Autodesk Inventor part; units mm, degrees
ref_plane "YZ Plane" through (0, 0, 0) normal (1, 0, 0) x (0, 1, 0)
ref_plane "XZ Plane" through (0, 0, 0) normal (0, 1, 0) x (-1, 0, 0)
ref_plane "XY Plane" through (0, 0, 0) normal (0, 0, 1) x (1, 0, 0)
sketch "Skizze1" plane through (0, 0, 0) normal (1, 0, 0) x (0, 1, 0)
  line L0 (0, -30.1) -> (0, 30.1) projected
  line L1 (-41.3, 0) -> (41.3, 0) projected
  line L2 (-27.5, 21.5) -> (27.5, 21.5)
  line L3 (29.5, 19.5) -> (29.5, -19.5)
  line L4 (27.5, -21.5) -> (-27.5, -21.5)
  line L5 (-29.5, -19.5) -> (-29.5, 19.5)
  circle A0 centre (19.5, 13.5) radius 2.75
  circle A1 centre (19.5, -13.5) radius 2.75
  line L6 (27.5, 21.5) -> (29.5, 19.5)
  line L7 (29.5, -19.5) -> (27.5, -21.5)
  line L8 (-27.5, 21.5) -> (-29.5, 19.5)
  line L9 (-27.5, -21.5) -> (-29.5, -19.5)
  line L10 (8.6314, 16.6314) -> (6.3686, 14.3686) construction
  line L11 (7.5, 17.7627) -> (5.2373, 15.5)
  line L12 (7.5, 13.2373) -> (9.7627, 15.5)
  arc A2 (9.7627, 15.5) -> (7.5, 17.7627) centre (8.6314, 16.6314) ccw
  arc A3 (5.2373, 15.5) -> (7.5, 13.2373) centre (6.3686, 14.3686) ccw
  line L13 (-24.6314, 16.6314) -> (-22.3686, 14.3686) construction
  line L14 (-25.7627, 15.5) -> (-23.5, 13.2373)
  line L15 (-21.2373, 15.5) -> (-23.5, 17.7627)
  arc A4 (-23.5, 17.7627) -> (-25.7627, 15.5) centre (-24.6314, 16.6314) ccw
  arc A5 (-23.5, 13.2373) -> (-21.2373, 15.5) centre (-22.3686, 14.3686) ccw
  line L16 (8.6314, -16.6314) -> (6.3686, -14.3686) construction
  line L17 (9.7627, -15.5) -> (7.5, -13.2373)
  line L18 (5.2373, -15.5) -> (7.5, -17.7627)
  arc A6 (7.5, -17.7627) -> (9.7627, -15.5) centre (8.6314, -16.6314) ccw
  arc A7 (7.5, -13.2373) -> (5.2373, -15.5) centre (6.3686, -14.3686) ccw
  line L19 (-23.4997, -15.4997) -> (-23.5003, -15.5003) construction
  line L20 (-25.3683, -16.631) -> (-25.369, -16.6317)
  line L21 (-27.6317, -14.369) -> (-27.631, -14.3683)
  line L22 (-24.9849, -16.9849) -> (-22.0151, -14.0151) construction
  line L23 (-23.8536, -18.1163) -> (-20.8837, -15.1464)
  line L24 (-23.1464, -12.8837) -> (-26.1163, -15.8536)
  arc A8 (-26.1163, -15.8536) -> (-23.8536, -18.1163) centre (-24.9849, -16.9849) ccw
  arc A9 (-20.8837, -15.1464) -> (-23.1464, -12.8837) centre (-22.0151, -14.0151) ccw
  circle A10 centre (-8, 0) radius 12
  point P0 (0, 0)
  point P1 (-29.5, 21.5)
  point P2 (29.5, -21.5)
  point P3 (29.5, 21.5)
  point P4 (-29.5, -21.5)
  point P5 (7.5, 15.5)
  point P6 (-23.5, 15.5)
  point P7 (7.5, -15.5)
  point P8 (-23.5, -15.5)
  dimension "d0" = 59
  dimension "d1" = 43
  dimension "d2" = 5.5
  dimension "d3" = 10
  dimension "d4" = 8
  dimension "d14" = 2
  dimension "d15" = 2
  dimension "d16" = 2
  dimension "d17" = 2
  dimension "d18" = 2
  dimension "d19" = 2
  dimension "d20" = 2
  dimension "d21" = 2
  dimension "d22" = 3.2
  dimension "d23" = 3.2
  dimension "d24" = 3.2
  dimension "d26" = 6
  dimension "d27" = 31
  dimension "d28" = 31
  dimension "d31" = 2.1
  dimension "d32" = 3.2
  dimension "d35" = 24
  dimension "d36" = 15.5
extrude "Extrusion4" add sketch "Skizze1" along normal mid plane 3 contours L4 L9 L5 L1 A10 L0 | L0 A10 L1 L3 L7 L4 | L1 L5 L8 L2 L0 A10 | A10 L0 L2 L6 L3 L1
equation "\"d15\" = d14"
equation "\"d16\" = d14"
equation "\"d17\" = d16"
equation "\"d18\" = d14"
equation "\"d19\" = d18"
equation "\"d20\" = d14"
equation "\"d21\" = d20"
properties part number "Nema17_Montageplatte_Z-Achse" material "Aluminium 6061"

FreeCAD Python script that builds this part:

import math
import FreeCAD as App
import Part
import Sketcher

doc = App.newDocument("Part")
body = doc.addObject("PartDesign::Body", "Body")

# Sketch on YZ plane
sketch1 = body.newObject("Sketcher::SketchObject", "Sketch")
sketch1.AttachmentSupport = (doc.getObject("YZ_Plane"), [""])
sketch1.MapMode = "FlatFace"
sketch1.addGeometry(Part.LineSegment(App.Vector(-27.5, -21.5, 0), App.Vector(27.5, -21.5, 0)), False)
sketch1.addGeometry(Part.LineSegment(App.Vector(27.5, -21.5, 0), App.Vector(29.5, -19.5, 0)), False)
sketch1.addGeometry(Part.LineSegment(App.Vector(29.5, -19.5, 0), App.Vector(29.5, 19.5, 0)), False)
sketch1.addGeometry(Part.LineSegment(App.Vector(29.5, 19.5, 0), App.Vector(27.5, 21.5, 0)), False)
sketch1.addGeometry(Part.LineSegment(App.Vector(27.5, 21.5, 0), App.Vector(-27.5, 21.5, 0)), False)
sketch1.addGeometry(Part.LineSegment(App.Vector(-27.5, 21.5, 0), App.Vector(-29.5, 19.5, 0)), False)
sketch1.addGeometry(Part.LineSegment(App.Vector(-29.5, 19.5, 0), App.Vector(-29.5, -19.5, 0)), False)
sketch1.addGeometry(Part.LineSegment(App.Vector(-29.5, -19.5, 0), App.Vector(-27.5, -21.5, 0)), False)
sketch1.addGeometry(Part.Circle(App.Vector(-8, 0, 0), App.Vector(0, 0, 1), 12), False)
sketch1.addGeometry(Part.LineSegment(App.Vector(-20.9, -15.1, 0), App.Vector(-23.9, -18.1, 0)), False)
sketch1.addGeometry(Part.ArcOfCircle(Part.Circle(App.Vector(-25, -17, 0), App.Vector(0, 0, 1), 1.6), math.radians(135), math.radians(315)), False)
sketch1.addGeometry(Part.LineSegment(App.Vector(-26.1, -15.9, 0), App.Vector(-23.1, -12.9, 0)), False)
sketch1.addGeometry(Part.ArcOfCircle(Part.Circle(App.Vector(-22, -14, 0), App.Vector(0, 0, 1), 1.6), math.radians(-45), math.radians(135)), False)
sketch1.addGeometry(Part.ArcOfCircle(Part.Circle(App.Vector(-24.6, 16.6, 0), App.Vector(0, 0, 1), 1.6), math.radians(45), math.radians(225)), False)
sketch1.addGeometry(Part.LineSegment(App.Vector(-23.5, 17.8, 0), App.Vector(-21.2, 15.5, 0)), False)
sketch1.addGeometry(Part.ArcOfCircle(Part.Circle(App.Vector(-22.4, 14.4, 0), App.Vector(0, 0, 1), 1.6), math.radians(-135), math.radians(45)), False)
sketch1.addGeometry(Part.LineSegment(App.Vector(-23.5, 13.2, 0), App.Vector(-25.8, 15.5, 0)), False)
sketch1.addGeometry(Part.Circle(App.Vector(19.5, -13.5, 0), App.Vector(0, 0, 1), 2.8), False)
sketch1.addGeometry(Part.LineSegment(App.Vector(7.5, -13.2, 0), App.Vector(9.8, -15.5, 0)), False)
sketch1.addGeometry(Part.ArcOfCircle(Part.Circle(App.Vector(8.6, -16.6, 0), App.Vector(0, 0, 1), 1.6), math.radians(-135), math.radians(45)), False)
sketch1.addGeometry(Part.LineSegment(App.Vector(7.5, -17.8, 0), App.Vector(5.2, -15.5, 0)), False)
sketch1.addGeometry(Part.ArcOfCircle(Part.Circle(App.Vector(6.4, -14.4, 0), App.Vector(0, 0, 1), 1.6), math.radians(45), math.radians(225)), False)
sketch1.addGeometry(Part.Circle(App.Vector(19.5, 13.5, 0), App.Vector(0, 0, 1), 2.8), False)
sketch1.addGeometry(Part.ArcOfCircle(Part.Circle(App.Vector(8.6, 16.6, 0), App.Vector(0, 0, 1), 1.6), math.radians(-45), math.radians(135)), False)
sketch1.addGeometry(Part.LineSegment(App.Vector(9.8, 15.5, 0), App.Vector(7.5, 13.2, 0)), False)
sketch1.addGeometry(Part.ArcOfCircle(Part.Circle(App.Vector(6.4, 14.4, 0), App.Vector(0, 0, 1), 1.6), math.radians(135), math.radians(315)), False)
sketch1.addGeometry(Part.LineSegment(App.Vector(5.2, 15.5, 0), App.Vector(7.5, 17.8, 0)), False)
sketch1.addConstraint(Sketcher.Constraint("Coincident", 0, 2, 1, 1))
sketch1.addConstraint(Sketcher.Constraint("Coincident", 1, 2, 2, 1))
sketch1.addConstraint(Sketcher.Constraint("Coincident", 2, 2, 3, 1))
sketch1.addConstraint(Sketcher.Constraint("Coincident", 3, 2, 4, 1))
sketch1.addConstraint(Sketcher.Constraint("Coincident", 4, 2, 5, 1))
sketch1.addConstraint(Sketcher.Constraint("Coincident", 5, 2, 6, 1))
sketch1.addConstraint(Sketcher.Constraint("Coincident", 6, 2, 7, 1))
sketch1.addConstraint(Sketcher.Constraint("Coincident", 7, 2, 0, 1))
sketch1.addConstraint(Sketcher.Constraint("Tangent", 9, 2, 10, 2))
sketch1.addConstraint(Sketcher.Constraint("Tangent", 10, 1, 11, 1))
sketch1.addConstraint(Sketcher.Constraint("Tangent", 11, 2, 12, 2))
sketch1.addConstraint(Sketcher.Constraint("Tangent", 12, 1, 9, 1))
sketch1.addConstraint(Sketcher.Constraint("Tangent", 13, 1, 14, 1))
sketch1.addConstraint(Sketcher.Constraint("Tangent", 14, 2, 15, 2))
sketch1.addConstraint(Sketcher.Constraint("Tangent", 15, 1, 16, 1))
sketch1.addConstraint(Sketcher.Constraint("Tangent", 16, 2, 13, 2))
sketch1.addConstraint(Sketcher.Constraint("Tangent", 18, 2, 19, 2))
sketch1.addConstraint(Sketcher.Constraint("Tangent", 19, 1, 20, 1))
sketch1.addConstraint(Sketcher.Constraint("Tangent", 20, 2, 21, 2))
sketch1.addConstraint(Sketcher.Constraint("Tangent", 21, 1, 18, 1))
sketch1.addConstraint(Sketcher.Constraint("Tangent", 23, 1, 24, 1))
sketch1.addConstraint(Sketcher.Constraint("Tangent", 24, 2, 25, 2))
sketch1.addConstraint(Sketcher.Constraint("Tangent", 25, 1, 26, 1))
sketch1.addConstraint(Sketcher.Constraint("Tangent", 26, 2, 23, 2))
sketch1.addConstraint(Sketcher.Constraint("Horizontal", 0))
sketch1.addConstraint(Sketcher.Constraint("Vertical", 2))
sketch1.addConstraint(Sketcher.Constraint("Horizontal", 4))
sketch1.addConstraint(Sketcher.Constraint("Vertical", 6))
sketch1.addConstraint(Sketcher.Constraint("Equal", 10, 12))
sketch1.addConstraint(Sketcher.Constraint("Equal", 12, 13))
sketch1.addConstraint(Sketcher.Constraint("Equal", 13, 15))
sketch1.addConstraint(Sketcher.Constraint("Equal", 15, 19))
sketch1.addConstraint(Sketcher.Constraint("Equal", 19, 21))
sketch1.addConstraint(Sketcher.Constraint("Equal", 17, 22))
sketch1.addConstraint(Sketcher.Constraint("Equal", 21, 23))
sketch1.addConstraint(Sketcher.Constraint("Equal", 23, 25))
sketch1.addConstraint(Sketcher.Constraint("Symmetric", 0, 2, 4, 2, -1, 1))
sketch1.addConstraint(Sketcher.Constraint("Symmetric", 1, 2, 5, 2, -1, 1))
sketch1.addConstraint(Sketcher.Constraint("Symmetric", 17, 3, 22, 3, -1))
sketch1.addConstraint(Sketcher.Constraint("Symmetric", 19, 3, 23, 3, -1))
sketch1.addConstraint(Sketcher.Constraint("Symmetric", 21, 3, 25, 3, -1))
sketch1.addConstraint(Sketcher.Constraint("PointOnObject", 8, 3, -1))
sketch1.addConstraint(Sketcher.Constraint("Perpendicular", 1, 3))
sketch1.addConstraint(Sketcher.Constraint("Perpendicular", 5, 7))
sketch1.addConstraint(Sketcher.Constraint("Perpendicular", 7, 9))
sketch1.addConstraint(Sketcher.Constraint("Perpendicular", 11, 14))
sketch1.addConstraint(Sketcher.Constraint("Parallel", 16, 18))
sketch1.addConstraint(Sketcher.Constraint("Perpendicular", 20, 24))
sketch1.addConstraint(Sketcher.Constraint("Horizontal", 13, 3, 23, 3))
sketch1.addConstraint(Sketcher.Constraint("Horizontal", 15, 3, 25, 3))
sketch1.addConstraint(Sketcher.Constraint("Horizontal", 2, 2, 5, 2))
sketch1.addConstraint(Sketcher.Constraint("Horizontal", 1, 2, 6, 2))
sketch1.addConstraint(Sketcher.Constraint("Horizontal", 14, 2, 16, 2))
sketch1.addConstraint(Sketcher.Constraint("Diameter", 8, 24.0))
sketch1.addConstraint(Sketcher.Constraint("Diameter", 17, 5.5))
sketch1.addConstraint(Sketcher.Constraint("Radius", 10, 1.6))
sketch1.addConstraint(Sketcher.Constraint("DistanceX", 8, 3, -1, 1, 8.0))
sketch1.addConstraint(Sketcher.Constraint("DistanceX", 15, 3, 19, 3, 31.0))
sketch1.addConstraint(Sketcher.Constraint("DistanceY", 19, 3, 15, 3, 31.0))
sketch1.addConstraint(Sketcher.Constraint("DistanceX", 17, 3, 0, 2, 8.0))
sketch1.addConstraint(Sketcher.Constraint("DistanceY", 0, 2, 17, 3, 8.0))
sketch1.addConstraint(Sketcher.Constraint("DistanceX", 0, 2, 1, 2, 2.0))
sketch1.addConstraint(Sketcher.Constraint("DistanceX", 5, 2, 13, 1, 6.0))
sketch1.addConstraint(Sketcher.Constraint("DistanceY", 14, 2, 4, 2, 6.0))
sketch1.addConstraint(Sketcher.Constraint("DistanceX", 13, 1, 8, 3, 15.5))
sketch1.addConstraint(Sketcher.Constraint("Distance", 9, 4.2))
sketch1.addConstraint(Sketcher.Constraint("DistanceX", 10, 3, -1, 1, 24.985))
sketch1.addConstraint(Sketcher.Constraint("DistanceY", 10, 3, -1, 1, 16.985))
pad1 = body.newObject("PartDesign::Pad", "Pad")
pad1.Profile = sketch1
pad1.Length = 3
pad1.Midplane = True

doc.recompute()
